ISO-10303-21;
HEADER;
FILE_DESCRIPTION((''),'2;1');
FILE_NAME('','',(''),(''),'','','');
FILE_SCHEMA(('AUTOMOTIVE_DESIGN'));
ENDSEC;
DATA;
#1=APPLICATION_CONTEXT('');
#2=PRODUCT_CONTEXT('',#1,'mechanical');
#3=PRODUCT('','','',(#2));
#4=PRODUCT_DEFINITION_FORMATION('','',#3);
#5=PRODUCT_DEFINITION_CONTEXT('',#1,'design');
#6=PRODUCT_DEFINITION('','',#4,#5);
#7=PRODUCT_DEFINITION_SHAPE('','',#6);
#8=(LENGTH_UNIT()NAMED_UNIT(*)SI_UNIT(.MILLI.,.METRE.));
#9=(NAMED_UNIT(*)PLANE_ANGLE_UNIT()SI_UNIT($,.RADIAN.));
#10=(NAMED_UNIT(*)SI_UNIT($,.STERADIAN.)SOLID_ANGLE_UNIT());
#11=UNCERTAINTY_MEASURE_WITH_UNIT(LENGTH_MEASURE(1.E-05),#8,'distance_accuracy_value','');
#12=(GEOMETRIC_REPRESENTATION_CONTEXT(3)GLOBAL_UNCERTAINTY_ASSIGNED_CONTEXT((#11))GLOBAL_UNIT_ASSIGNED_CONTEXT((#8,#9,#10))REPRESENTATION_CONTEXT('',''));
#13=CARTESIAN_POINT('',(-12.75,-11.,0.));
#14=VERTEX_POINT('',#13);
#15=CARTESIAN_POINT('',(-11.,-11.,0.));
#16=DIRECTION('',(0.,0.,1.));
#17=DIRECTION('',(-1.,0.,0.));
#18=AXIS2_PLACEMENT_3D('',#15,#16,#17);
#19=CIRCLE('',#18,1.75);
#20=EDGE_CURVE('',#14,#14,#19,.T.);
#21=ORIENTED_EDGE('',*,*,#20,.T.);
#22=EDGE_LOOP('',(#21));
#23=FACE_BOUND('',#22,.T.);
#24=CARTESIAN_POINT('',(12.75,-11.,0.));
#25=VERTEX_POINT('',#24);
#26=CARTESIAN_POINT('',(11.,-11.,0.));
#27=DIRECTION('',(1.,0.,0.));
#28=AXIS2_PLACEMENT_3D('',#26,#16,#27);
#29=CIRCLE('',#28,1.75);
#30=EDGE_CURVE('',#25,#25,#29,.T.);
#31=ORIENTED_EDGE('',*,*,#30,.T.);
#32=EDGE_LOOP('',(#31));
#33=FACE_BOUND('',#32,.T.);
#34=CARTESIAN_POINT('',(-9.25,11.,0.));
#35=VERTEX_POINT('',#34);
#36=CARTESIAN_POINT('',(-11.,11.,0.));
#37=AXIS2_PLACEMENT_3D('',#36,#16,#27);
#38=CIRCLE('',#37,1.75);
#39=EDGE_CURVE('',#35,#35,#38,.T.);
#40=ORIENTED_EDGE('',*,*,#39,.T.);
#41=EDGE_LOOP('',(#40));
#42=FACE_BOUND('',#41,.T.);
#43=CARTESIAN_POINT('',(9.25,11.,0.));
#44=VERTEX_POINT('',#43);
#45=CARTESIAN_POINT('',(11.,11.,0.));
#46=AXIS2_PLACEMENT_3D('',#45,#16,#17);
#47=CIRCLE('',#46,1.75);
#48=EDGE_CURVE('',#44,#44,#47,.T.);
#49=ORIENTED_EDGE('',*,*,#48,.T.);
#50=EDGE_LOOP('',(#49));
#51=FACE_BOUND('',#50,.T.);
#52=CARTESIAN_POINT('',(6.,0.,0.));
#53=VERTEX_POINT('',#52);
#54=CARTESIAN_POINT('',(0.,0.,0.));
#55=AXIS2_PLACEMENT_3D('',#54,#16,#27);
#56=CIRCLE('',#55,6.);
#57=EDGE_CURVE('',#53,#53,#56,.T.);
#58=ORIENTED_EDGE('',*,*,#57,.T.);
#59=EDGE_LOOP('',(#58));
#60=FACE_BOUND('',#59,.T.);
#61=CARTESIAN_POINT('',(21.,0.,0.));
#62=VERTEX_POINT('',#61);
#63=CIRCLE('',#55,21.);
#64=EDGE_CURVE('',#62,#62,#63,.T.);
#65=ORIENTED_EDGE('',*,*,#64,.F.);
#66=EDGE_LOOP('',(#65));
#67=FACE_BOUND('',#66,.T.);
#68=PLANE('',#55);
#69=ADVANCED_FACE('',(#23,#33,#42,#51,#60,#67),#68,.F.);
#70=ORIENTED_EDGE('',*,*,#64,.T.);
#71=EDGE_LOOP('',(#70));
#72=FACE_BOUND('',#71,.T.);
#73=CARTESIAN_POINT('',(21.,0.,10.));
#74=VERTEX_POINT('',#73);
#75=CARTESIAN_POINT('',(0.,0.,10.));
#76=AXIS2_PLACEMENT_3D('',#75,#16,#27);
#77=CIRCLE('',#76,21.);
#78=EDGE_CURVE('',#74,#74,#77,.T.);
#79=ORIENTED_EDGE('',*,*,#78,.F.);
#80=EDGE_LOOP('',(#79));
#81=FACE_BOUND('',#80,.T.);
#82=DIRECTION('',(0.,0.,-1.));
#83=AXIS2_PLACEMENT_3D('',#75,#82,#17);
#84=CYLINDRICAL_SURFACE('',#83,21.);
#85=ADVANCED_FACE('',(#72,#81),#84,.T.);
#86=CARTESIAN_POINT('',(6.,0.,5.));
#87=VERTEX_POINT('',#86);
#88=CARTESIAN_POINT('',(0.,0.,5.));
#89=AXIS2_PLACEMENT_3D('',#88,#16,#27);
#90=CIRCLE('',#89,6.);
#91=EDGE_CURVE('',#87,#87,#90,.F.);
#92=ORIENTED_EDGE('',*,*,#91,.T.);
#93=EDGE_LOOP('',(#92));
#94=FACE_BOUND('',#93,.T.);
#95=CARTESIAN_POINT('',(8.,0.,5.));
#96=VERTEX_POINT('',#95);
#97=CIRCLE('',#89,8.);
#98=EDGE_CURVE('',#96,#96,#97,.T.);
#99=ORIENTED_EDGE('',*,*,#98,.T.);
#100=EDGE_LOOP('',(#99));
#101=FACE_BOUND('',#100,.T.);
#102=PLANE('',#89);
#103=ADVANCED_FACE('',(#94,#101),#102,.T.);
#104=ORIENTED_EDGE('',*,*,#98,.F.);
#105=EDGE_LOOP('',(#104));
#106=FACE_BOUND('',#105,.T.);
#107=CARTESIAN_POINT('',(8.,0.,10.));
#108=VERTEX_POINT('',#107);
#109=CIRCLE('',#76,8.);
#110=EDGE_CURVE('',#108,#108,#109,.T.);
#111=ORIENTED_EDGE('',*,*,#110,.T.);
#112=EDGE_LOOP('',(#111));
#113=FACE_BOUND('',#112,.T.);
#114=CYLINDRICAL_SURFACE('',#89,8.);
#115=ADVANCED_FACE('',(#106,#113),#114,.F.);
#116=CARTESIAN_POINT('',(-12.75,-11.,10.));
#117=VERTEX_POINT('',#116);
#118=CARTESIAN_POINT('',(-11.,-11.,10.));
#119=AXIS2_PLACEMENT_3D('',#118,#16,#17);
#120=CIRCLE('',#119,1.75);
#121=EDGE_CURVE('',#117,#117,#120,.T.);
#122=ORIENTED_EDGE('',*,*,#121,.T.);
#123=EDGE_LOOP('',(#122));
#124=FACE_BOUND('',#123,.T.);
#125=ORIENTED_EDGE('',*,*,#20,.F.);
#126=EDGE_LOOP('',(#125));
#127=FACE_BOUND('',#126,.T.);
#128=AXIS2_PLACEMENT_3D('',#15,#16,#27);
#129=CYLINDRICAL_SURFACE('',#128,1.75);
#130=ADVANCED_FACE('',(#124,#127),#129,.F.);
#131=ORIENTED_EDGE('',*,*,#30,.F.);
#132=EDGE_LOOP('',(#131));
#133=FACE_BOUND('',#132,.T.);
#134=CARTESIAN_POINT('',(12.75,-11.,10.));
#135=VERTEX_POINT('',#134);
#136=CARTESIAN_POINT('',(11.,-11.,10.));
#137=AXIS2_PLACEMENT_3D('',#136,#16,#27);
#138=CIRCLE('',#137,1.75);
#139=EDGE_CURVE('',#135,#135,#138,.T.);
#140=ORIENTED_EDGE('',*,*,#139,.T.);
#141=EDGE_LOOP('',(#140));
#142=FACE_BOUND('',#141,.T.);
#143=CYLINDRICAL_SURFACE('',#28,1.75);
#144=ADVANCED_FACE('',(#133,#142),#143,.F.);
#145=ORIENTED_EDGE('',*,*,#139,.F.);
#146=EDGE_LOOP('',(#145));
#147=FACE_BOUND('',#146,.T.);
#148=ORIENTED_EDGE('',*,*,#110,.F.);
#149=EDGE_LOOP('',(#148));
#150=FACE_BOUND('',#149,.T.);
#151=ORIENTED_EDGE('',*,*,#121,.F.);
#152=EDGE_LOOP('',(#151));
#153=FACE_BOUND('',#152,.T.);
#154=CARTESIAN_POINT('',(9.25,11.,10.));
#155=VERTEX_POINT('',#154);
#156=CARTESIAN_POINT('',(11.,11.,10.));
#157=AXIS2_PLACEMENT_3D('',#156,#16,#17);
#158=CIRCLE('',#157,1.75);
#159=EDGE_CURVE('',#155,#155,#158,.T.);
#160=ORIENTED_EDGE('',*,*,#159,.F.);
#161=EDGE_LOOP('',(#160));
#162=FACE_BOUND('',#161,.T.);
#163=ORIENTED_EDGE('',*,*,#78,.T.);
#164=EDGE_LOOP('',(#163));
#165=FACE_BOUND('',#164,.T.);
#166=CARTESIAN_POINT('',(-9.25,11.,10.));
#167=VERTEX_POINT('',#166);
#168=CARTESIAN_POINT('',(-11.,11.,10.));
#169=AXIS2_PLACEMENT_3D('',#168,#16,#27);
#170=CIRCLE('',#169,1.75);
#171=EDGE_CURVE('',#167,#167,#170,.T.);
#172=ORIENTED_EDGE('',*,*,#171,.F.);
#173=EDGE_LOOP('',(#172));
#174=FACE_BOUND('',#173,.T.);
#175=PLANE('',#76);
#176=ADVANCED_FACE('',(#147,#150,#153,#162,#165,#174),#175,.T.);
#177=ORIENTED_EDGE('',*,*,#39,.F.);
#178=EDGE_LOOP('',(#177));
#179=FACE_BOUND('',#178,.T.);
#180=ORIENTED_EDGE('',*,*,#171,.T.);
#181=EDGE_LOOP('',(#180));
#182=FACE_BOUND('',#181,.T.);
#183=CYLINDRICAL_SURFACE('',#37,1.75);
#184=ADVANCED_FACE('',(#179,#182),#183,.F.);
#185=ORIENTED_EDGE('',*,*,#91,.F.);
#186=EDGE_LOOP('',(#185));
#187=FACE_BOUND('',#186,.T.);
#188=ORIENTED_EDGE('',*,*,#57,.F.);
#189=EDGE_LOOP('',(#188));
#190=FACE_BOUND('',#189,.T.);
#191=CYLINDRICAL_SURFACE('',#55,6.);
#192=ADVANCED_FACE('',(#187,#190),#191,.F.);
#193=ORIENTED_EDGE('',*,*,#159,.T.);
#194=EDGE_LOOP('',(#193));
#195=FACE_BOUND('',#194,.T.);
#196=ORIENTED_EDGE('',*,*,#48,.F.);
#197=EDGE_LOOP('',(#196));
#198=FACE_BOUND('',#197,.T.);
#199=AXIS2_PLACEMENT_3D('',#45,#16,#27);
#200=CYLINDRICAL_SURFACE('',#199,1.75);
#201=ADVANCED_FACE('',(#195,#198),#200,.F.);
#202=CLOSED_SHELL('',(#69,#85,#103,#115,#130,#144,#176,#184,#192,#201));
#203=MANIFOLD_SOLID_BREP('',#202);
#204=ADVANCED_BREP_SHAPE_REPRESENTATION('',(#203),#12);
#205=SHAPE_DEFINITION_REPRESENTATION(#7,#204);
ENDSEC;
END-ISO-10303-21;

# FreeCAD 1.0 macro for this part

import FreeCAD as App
import Part
import Sketcher
from FreeCAD import Vector

doc = App.newDocument("Part")
body = doc.addObject("PartDesign::Body", "Body")

sketch1 = body.newObject("Sketcher::SketchObject", "Sketch")
sketch1.AttachmentSupport = (doc.getObject("XY_Plane"), [""])
sketch1.MapMode = "FlatFace"
sketch1.addGeometry(Part.Circle(Vector(0, 0, 0), Vector(0, 0, 1), 21), False)
sketch1.addConstraint([
    Sketcher.Constraint("Coincident", 0, 3, -1, 1),
    Sketcher.Constraint("Diameter", 0, 42.0),
])
pad1 = body.newObject("PartDesign::Pad", "Pad")
pad1.Profile = sketch1
pad1.Length = 10

sketch2 = body.newObject("Sketcher::SketchObject", "Sketch001")
sketch2.AttachmentSupport = (doc.getObject("XY_Plane"), [""])
sketch2.MapMode = "FlatFace"
sketch2.AttachmentOffset = App.Placement(Vector(0, 0, 10), App.Rotation())
sketch2.addGeometry(Part.Circle(Vector(0, 0, 0), Vector(0, 0, 1), 6), False)
sketch2.addConstraint([
    Sketcher.Constraint("Coincident", 0, 3, -1, 1),
    Sketcher.Constraint("Diameter", 0, 12.0),
])
pocket1 = body.newObject("PartDesign::Pocket", "Pocket")
pocket1.Profile = sketch2
pocket1.Type = "ThroughAll"

sketch3 = body.newObject("Sketcher::SketchObject", "Sketch002")
sketch3.AttachmentSupport = (doc.getObject("XY_Plane"), [""])
sketch3.MapMode = "FlatFace"
sketch3.AttachmentOffset = App.Placement(Vector(0, 0, 10), App.Rotation())
sketch3.addGeometry(Part.Circle(Vector(0, 0, 0), Vector(0, 0, 1), 8), False)
sketch3.addConstraint([
    Sketcher.Constraint("Coincident", 0, 3, -1, 1),
    Sketcher.Constraint("Diameter", 0, 16.0),
])
pocket2 = body.newObject("PartDesign::Pocket", "Pocket001")
pocket2.Profile = sketch3
pocket2.Length = 5

sketch4 = body.newObject("Sketcher::SketchObject", "Sketch003")
sketch4.AttachmentSupport = (doc.getObject("XY_Plane"), [""])
sketch4.MapMode = "FlatFace"
sketch4.AttachmentOffset = App.Placement(Vector(0, 0, 10), App.Rotation())
sketch4.addGeometry([
    Part.Circle(Vector(-11, 11, 0), Vector(0, 0, 1), 1.8),
    Part.Circle(Vector(11, 11, 0), Vector(0, 0, 1), 1.8),
    Part.Circle(Vector(11, -11, 0), Vector(0, 0, 1), 1.8),
    Part.Circle(Vector(-11, -11, 0), Vector(0, 0, 1), 1.8),
], False)
sketch4.addConstraint([
    Sketcher.Constraint("Equal", 0, 1),
    Sketcher.Constraint("Equal", 1, 2),
    Sketcher.Constraint("Equal", 2, 3),
    Sketcher.Constraint("Symmetric", 0, 3, 2, 3, -1, 1),
    Sketcher.Constraint("Symmetric", 1, 3, 3, 3, -1, 1),
    Sketcher.Constraint("Symmetric", 0, 3, 1, 3, -2),
    Sketcher.Constraint("Diameter", 0, 3.5),
    Sketcher.Constraint("DistanceX", 0, 3, -1, 1, 11.0),
    Sketcher.Constraint("DistanceY", -1, 1, 0, 3, 11.0),
])
pocket3 = body.newObject("PartDesign::Pocket", "Pocket002")
pocket3.Profile = sketch4
pocket3.Type = "ThroughAll"

doc.recompute()
